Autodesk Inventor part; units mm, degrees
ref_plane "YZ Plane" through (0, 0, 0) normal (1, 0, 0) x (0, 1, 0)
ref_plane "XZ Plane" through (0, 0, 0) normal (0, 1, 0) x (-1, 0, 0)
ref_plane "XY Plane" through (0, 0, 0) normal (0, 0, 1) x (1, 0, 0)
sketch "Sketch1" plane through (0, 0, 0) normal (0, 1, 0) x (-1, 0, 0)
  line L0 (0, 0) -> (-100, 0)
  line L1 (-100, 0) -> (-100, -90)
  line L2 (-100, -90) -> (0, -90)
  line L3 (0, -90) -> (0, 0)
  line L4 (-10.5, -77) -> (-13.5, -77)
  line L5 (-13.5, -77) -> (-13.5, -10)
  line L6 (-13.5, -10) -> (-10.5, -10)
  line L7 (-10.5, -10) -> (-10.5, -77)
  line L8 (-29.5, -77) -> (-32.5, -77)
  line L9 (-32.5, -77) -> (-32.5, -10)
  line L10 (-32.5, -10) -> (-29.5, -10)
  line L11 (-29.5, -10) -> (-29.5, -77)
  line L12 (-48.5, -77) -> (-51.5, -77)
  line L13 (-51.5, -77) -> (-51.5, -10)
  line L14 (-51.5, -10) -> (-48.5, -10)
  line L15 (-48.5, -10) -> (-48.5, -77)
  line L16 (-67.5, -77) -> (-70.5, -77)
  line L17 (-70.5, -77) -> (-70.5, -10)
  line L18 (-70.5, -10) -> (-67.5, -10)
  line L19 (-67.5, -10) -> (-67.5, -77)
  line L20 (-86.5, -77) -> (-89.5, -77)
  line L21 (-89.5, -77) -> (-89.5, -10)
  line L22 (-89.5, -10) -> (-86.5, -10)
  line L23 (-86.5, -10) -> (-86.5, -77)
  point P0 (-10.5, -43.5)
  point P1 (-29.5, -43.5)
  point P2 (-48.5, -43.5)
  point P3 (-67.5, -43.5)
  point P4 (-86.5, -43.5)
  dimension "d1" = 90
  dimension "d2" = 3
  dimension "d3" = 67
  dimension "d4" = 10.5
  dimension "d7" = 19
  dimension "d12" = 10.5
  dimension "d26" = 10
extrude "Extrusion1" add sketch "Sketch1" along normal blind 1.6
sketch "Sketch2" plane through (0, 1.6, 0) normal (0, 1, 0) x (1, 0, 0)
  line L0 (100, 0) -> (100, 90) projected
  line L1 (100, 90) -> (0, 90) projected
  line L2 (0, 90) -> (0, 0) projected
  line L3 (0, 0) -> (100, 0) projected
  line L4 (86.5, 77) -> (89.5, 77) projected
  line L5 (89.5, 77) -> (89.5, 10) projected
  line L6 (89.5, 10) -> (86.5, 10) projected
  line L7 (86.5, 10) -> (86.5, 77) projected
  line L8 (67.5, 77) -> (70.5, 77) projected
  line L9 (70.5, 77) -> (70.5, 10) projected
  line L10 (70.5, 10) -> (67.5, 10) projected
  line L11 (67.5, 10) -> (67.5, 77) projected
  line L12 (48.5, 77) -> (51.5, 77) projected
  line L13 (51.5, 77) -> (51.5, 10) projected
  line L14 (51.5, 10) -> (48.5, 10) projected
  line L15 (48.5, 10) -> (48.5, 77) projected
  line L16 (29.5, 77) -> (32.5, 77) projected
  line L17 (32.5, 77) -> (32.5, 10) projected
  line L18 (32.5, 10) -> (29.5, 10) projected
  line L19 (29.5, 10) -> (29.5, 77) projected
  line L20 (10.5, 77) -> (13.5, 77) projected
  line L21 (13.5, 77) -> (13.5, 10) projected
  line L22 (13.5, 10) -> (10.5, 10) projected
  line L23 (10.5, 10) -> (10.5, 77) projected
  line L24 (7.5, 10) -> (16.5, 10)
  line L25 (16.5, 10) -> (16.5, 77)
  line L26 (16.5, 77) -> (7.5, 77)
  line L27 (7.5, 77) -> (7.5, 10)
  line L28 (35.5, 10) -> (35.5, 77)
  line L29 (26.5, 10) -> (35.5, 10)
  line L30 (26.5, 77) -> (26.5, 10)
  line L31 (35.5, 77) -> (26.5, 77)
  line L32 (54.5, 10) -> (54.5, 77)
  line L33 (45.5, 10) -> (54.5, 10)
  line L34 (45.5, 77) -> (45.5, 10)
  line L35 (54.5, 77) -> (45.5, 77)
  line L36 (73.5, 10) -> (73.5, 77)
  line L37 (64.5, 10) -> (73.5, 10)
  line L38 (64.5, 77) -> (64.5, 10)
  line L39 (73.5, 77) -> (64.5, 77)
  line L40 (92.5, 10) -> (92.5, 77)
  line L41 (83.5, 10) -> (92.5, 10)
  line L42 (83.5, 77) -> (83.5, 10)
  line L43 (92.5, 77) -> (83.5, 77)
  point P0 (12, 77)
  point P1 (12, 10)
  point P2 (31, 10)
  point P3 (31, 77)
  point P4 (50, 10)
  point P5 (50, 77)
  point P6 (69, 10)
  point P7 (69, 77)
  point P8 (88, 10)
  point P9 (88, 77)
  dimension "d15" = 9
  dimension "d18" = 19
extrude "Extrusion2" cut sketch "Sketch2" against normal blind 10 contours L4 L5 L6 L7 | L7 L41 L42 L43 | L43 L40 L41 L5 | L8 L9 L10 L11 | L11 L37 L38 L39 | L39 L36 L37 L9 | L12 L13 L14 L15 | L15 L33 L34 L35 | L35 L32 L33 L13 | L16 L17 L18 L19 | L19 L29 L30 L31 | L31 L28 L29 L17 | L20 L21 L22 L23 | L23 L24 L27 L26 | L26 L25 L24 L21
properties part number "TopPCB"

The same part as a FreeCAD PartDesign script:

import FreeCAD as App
import Part
import Sketcher

V = App.Vector
Q = App.Units.Quantity


def add_polygon(sketch, points):
    """Adds a closed chain of lines whose ends are joined by coincident constraints."""
    first, n = sketch.GeometryCount, len(points)
    for a, b in zip(points, points[1:] + points[:1]):
        sketch.addGeometry(Part.LineSegment(App.Vector(*a, 0), App.Vector(*b, 0)), False)
    for i in range(n):
        sketch.addConstraint(Sketcher.Constraint("Coincident", first + i, 2, first + (i + 1) % n, 1))

doc = App.newDocument("Part")
params = doc.addObject("Spreadsheet::Sheet", "Params")
for row, (alias, value) in enumerate([
    ("sketch1_width", "3.937 in"),
    ("pad1_length", "0.0629921 in"),
    ("pocket1_length", "0.3937008 in"),
], start=1):
    params.set(f"A{row}", alias)
    params.set(f"B{row}", "=" + value)
    params.setAlias(f"B{row}", alias)

body = doc.addObject("PartDesign::Body", "Body")

sketch1 = body.newObject("Sketcher::SketchObject", "Sketch")
sketch1.AttachmentSupport = (doc.getObject("XZ_Plane"), [""])
sketch1.MapMode = "FlatFace"
add_polygon(sketch1, [(0, -90), (0, 0), (100, 0), (100, -90)])
add_polygon(sketch1, [(86.5, -10), (86.5, -77), (89.5, -77), (89.5, -10)])
add_polygon(sketch1, [(67.5, -10), (67.5, -77), (70.5, -77), (70.5, -10)])
add_polygon(sketch1, [(48.5, -10), (48.5, -77), (51.5, -77), (51.5, -10)])
add_polygon(sketch1, [(29.5, -10), (29.5, -77), (32.5, -77), (32.5, -10)])
add_polygon(sketch1, [(10.5, -10), (10.5, -77), (13.5, -77), (13.5, -10)])
sketch1.addConstraint(Sketcher.Constraint("Vertical", 0))
sketch1.addConstraint(Sketcher.Constraint("Horizontal", 1))
sketch1.addConstraint(Sketcher.Constraint("Vertical", 2))
sketch1.addConstraint(Sketcher.Constraint("Horizontal", 3))
sketch1.addConstraint(Sketcher.Constraint("Vertical", 4))
sketch1.addConstraint(Sketcher.Constraint("Horizontal", 5))
sketch1.addConstraint(Sketcher.Constraint("Vertical", 6))
sketch1.addConstraint(Sketcher.Constraint("Horizontal", 7))
sketch1.addConstraint(Sketcher.Constraint("Vertical", 8))
sketch1.addConstraint(Sketcher.Constraint("Horizontal", 9))
sketch1.addConstraint(Sketcher.Constraint("Vertical", 10))
sketch1.addConstraint(Sketcher.Constraint("Horizontal", 11))
sketch1.addConstraint(Sketcher.Constraint("Vertical", 12))
sketch1.addConstraint(Sketcher.Constraint("Horizontal", 13))
sketch1.addConstraint(Sketcher.Constraint("Vertical", 14))
sketch1.addConstraint(Sketcher.Constraint("Horizontal", 15))
sketch1.addConstraint(Sketcher.Constraint("Vertical", 16))
sketch1.addConstraint(Sketcher.Constraint("Horizontal", 17))
sketch1.addConstraint(Sketcher.Constraint("Vertical", 18))
sketch1.addConstraint(Sketcher.Constraint("Horizontal", 19))
sketch1.addConstraint(Sketcher.Constraint("Vertical", 20))
sketch1.addConstraint(Sketcher.Constraint("Horizontal", 21))
sketch1.addConstraint(Sketcher.Constraint("Vertical", 22))
sketch1.addConstraint(Sketcher.Constraint("Horizontal", 23))
sketch1.addConstraint(Sketcher.Constraint("Coincident", 0, 2, -1, 1))
sketch1.addConstraint(Sketcher.Constraint("Horizontal", 5, 2, 8, 2))
sketch1.addConstraint(Sketcher.Constraint("Horizontal", 7, 2, 10, 2))
sketch1.addConstraint(Sketcher.Constraint("Horizontal", 9, 2, 12, 2))
sketch1.addConstraint(Sketcher.Constraint("Horizontal", 11, 2, 14, 2))
sketch1.addConstraint(Sketcher.Constraint("Horizontal", 13, 2, 16, 2))
sketch1.addConstraint(Sketcher.Constraint("Horizontal", 15, 2, 18, 2))
sketch1.addConstraint(Sketcher.Constraint("Horizontal", 17, 2, 20, 2))
sketch1.addConstraint(Sketcher.Constraint("Horizontal", 19, 2, 22, 2))
sketch1.addConstraint(Sketcher.Constraint("Equal", 7, 9))
sketch1.addConstraint(Sketcher.Constraint("Equal", 11, 13))
sketch1.addConstraint(Sketcher.Constraint("Equal", 15, 17))
sketch1.addConstraint(Sketcher.Constraint("Equal", 19, 21))
sketch1.addConstraint(Sketcher.Constraint("DistanceX", 5, 1, 5, 2, Q("0.1181 in")))
sketch1.addConstraint(Sketcher.Constraint("DistanceY", 0, 1, 0, 2, Q("3.5433 in")))
sketch1.addConstraint(Sketcher.Constraint("DistanceY", 4, 2, 4, 1, Q("2.6378 in")))
sketch1.addConstraint(Sketcher.Constraint("DistanceY", 6, 2, -1, 1, Q("0.3937 in")))
sketch1.addConstraint(Sketcher.Constraint("DistanceX", 1, 1, 1, 2, Q("3.937 in")))
sketch1.addConstraint(Sketcher.Constraint("DistanceX", -1, 1, 20, 2, 10.5))
sketch1.addConstraint(Sketcher.Constraint("DistanceX", 5, 2, 2, 2, 10.5))
sketch1.addConstraint(Sketcher.Constraint("DistanceX", 8, 2, 4, 2, 19.0))
sketch1.addConstraint(Sketcher.Constraint("DistanceX", 12, 2, 8, 2, 19.0))
sketch1.addConstraint(Sketcher.Constraint("DistanceX", 16, 2, 12, 2, 19.0))
sketch1.setExpression("Constraints[65]", "Params.sketch1_width")
pad1 = body.newObject("PartDesign::Pad", "Pad")
pad1.Profile = sketch1
pad1.setExpression("Length", "Params.pad1_length")
pad1.Reversed = True

sketch2 = body.newObject("Sketcher::SketchObject", "Sketch001")
sketch2.AttachmentSupport = (doc.getObject("XZ_Plane"), [""])
sketch2.MapMode = "FlatFace"
sketch2.AttachmentOffset = App.Placement(V(0, 0, -0.0629921 * 25.4), App.Rotation())
add_polygon(sketch2, [(84, -77), (84, -10), (92, -10), (92, -77)])
add_polygon(sketch2, [(64, -77), (64, -10), (74, -10), (74, -77)])
add_polygon(sketch2, [(46, -77), (46, -10), (54, -10), (54, -77)])
add_polygon(sketch2, [(26, -77), (26, -10), (36, -10), (36, -77)])
add_polygon(sketch2, [(8, -77), (8, -10), (16, -10), (16, -77)])
sketch2.addConstraint(Sketcher.Constraint("Vertical", 0))
sketch2.addConstraint(Sketcher.Constraint("Horizontal", 1))
sketch2.addConstraint(Sketcher.Constraint("Vertical", 2))
sketch2.addConstraint(Sketcher.Constraint("Horizontal", 3))
sketch2.addConstraint(Sketcher.Constraint("Vertical", 4))
sketch2.addConstraint(Sketcher.Constraint("Horizontal", 5))
sketch2.addConstraint(Sketcher.Constraint("Vertical", 6))
sketch2.addConstraint(Sketcher.Constraint("Horizontal", 7))
sketch2.addConstraint(Sketcher.Constraint("Vertical", 8))
sketch2.addConstraint(Sketcher.Constraint("Horizontal", 9))
sketch2.addConstraint(Sketcher.Constraint("Vertical", 10))
sketch2.addConstraint(Sketcher.Constraint("Horizontal", 11))
sketch2.addConstraint(Sketcher.Constraint("Vertical", 12))
sketch2.addConstraint(Sketcher.Constraint("Horizontal", 13))
sketch2.addConstraint(Sketcher.Constraint("Vertical", 14))
sketch2.addConstraint(Sketcher.Constraint("Horizontal", 15))
sketch2.addConstraint(Sketcher.Constraint("Vertical", 16))
sketch2.addConstraint(Sketcher.Constraint("Horizontal", 17))
sketch2.addConstraint(Sketcher.Constraint("Vertical", 18))
sketch2.addConstraint(Sketcher.Constraint("Horizontal", 19))
sketch2.addConstraint(Sketcher.Constraint("Horizontal", 1, 2, 4, 2))
sketch2.addConstraint(Sketcher.Constraint("Horizontal", 3, 2, 6, 2))
sketch2.addConstraint(Sketcher.Constraint("Horizontal", 5, 2, 8, 2))
sketch2.addConstraint(Sketcher.Constraint("Horizontal", 7, 2, 10, 2))
sketch2.addConstraint(Sketcher.Constraint("Horizontal", 9, 2, 12, 2))
sketch2.addConstraint(Sketcher.Constraint("Horizontal", 11, 2, 14, 2))
sketch2.addConstraint(Sketcher.Constraint("Horizontal", 13, 2, 16, 2))
sketch2.addConstraint(Sketcher.Constraint("Horizontal", 15, 2, 18, 2))
sketch2.addConstraint(Sketcher.Constraint("Equal", 3, 5))
sketch2.addConstraint(Sketcher.Constraint("Equal", 7, 9))
sketch2.addConstraint(Sketcher.Constraint("Equal", 11, 13))
sketch2.addConstraint(Sketcher.Constraint("Equal", 15, 17))
sketch2.addConstraint(Sketcher.Constraint("DistanceX", 1, 1, 1, 2, 9.0))
sketch2.addConstraint(Sketcher.Constraint("DistanceY", 0, 2, -1, 1, Q("0.3937 in")))
sketch2.addConstraint(Sketcher.Constraint("DistanceX", 5, 2, 0, 2, Q("0.3937 in")))
sketch2.addConstraint(Sketcher.Constraint("DistanceX", 9, 2, 4, 2, Q("0.3937 in")))
sketch2.addConstraint(Sketcher.Constraint("DistanceX", 13, 2, 8, 2, Q("0.3937 in")))
sketch2.addConstraint(Sketcher.Constraint("DistanceX", 17, 2, 12, 2, Q("0.3937 in")))
sketch2.addConstraint(Sketcher.Constraint("DistanceY", 0, 1, 0, 2, Q("2.6378 in")))
sketch2.addConstraint(Sketcher.Constraint("DistanceX", -1, 1, 0, 2, Q("3.2874 in")))
pocket1 = body.newObject("PartDesign::Pocket", "Pocket")
pocket1.Profile = sketch2
pocket1.setExpression("Length", "Params.pocket1_length")
pocket1.Reversed = True

doc.recompute()
